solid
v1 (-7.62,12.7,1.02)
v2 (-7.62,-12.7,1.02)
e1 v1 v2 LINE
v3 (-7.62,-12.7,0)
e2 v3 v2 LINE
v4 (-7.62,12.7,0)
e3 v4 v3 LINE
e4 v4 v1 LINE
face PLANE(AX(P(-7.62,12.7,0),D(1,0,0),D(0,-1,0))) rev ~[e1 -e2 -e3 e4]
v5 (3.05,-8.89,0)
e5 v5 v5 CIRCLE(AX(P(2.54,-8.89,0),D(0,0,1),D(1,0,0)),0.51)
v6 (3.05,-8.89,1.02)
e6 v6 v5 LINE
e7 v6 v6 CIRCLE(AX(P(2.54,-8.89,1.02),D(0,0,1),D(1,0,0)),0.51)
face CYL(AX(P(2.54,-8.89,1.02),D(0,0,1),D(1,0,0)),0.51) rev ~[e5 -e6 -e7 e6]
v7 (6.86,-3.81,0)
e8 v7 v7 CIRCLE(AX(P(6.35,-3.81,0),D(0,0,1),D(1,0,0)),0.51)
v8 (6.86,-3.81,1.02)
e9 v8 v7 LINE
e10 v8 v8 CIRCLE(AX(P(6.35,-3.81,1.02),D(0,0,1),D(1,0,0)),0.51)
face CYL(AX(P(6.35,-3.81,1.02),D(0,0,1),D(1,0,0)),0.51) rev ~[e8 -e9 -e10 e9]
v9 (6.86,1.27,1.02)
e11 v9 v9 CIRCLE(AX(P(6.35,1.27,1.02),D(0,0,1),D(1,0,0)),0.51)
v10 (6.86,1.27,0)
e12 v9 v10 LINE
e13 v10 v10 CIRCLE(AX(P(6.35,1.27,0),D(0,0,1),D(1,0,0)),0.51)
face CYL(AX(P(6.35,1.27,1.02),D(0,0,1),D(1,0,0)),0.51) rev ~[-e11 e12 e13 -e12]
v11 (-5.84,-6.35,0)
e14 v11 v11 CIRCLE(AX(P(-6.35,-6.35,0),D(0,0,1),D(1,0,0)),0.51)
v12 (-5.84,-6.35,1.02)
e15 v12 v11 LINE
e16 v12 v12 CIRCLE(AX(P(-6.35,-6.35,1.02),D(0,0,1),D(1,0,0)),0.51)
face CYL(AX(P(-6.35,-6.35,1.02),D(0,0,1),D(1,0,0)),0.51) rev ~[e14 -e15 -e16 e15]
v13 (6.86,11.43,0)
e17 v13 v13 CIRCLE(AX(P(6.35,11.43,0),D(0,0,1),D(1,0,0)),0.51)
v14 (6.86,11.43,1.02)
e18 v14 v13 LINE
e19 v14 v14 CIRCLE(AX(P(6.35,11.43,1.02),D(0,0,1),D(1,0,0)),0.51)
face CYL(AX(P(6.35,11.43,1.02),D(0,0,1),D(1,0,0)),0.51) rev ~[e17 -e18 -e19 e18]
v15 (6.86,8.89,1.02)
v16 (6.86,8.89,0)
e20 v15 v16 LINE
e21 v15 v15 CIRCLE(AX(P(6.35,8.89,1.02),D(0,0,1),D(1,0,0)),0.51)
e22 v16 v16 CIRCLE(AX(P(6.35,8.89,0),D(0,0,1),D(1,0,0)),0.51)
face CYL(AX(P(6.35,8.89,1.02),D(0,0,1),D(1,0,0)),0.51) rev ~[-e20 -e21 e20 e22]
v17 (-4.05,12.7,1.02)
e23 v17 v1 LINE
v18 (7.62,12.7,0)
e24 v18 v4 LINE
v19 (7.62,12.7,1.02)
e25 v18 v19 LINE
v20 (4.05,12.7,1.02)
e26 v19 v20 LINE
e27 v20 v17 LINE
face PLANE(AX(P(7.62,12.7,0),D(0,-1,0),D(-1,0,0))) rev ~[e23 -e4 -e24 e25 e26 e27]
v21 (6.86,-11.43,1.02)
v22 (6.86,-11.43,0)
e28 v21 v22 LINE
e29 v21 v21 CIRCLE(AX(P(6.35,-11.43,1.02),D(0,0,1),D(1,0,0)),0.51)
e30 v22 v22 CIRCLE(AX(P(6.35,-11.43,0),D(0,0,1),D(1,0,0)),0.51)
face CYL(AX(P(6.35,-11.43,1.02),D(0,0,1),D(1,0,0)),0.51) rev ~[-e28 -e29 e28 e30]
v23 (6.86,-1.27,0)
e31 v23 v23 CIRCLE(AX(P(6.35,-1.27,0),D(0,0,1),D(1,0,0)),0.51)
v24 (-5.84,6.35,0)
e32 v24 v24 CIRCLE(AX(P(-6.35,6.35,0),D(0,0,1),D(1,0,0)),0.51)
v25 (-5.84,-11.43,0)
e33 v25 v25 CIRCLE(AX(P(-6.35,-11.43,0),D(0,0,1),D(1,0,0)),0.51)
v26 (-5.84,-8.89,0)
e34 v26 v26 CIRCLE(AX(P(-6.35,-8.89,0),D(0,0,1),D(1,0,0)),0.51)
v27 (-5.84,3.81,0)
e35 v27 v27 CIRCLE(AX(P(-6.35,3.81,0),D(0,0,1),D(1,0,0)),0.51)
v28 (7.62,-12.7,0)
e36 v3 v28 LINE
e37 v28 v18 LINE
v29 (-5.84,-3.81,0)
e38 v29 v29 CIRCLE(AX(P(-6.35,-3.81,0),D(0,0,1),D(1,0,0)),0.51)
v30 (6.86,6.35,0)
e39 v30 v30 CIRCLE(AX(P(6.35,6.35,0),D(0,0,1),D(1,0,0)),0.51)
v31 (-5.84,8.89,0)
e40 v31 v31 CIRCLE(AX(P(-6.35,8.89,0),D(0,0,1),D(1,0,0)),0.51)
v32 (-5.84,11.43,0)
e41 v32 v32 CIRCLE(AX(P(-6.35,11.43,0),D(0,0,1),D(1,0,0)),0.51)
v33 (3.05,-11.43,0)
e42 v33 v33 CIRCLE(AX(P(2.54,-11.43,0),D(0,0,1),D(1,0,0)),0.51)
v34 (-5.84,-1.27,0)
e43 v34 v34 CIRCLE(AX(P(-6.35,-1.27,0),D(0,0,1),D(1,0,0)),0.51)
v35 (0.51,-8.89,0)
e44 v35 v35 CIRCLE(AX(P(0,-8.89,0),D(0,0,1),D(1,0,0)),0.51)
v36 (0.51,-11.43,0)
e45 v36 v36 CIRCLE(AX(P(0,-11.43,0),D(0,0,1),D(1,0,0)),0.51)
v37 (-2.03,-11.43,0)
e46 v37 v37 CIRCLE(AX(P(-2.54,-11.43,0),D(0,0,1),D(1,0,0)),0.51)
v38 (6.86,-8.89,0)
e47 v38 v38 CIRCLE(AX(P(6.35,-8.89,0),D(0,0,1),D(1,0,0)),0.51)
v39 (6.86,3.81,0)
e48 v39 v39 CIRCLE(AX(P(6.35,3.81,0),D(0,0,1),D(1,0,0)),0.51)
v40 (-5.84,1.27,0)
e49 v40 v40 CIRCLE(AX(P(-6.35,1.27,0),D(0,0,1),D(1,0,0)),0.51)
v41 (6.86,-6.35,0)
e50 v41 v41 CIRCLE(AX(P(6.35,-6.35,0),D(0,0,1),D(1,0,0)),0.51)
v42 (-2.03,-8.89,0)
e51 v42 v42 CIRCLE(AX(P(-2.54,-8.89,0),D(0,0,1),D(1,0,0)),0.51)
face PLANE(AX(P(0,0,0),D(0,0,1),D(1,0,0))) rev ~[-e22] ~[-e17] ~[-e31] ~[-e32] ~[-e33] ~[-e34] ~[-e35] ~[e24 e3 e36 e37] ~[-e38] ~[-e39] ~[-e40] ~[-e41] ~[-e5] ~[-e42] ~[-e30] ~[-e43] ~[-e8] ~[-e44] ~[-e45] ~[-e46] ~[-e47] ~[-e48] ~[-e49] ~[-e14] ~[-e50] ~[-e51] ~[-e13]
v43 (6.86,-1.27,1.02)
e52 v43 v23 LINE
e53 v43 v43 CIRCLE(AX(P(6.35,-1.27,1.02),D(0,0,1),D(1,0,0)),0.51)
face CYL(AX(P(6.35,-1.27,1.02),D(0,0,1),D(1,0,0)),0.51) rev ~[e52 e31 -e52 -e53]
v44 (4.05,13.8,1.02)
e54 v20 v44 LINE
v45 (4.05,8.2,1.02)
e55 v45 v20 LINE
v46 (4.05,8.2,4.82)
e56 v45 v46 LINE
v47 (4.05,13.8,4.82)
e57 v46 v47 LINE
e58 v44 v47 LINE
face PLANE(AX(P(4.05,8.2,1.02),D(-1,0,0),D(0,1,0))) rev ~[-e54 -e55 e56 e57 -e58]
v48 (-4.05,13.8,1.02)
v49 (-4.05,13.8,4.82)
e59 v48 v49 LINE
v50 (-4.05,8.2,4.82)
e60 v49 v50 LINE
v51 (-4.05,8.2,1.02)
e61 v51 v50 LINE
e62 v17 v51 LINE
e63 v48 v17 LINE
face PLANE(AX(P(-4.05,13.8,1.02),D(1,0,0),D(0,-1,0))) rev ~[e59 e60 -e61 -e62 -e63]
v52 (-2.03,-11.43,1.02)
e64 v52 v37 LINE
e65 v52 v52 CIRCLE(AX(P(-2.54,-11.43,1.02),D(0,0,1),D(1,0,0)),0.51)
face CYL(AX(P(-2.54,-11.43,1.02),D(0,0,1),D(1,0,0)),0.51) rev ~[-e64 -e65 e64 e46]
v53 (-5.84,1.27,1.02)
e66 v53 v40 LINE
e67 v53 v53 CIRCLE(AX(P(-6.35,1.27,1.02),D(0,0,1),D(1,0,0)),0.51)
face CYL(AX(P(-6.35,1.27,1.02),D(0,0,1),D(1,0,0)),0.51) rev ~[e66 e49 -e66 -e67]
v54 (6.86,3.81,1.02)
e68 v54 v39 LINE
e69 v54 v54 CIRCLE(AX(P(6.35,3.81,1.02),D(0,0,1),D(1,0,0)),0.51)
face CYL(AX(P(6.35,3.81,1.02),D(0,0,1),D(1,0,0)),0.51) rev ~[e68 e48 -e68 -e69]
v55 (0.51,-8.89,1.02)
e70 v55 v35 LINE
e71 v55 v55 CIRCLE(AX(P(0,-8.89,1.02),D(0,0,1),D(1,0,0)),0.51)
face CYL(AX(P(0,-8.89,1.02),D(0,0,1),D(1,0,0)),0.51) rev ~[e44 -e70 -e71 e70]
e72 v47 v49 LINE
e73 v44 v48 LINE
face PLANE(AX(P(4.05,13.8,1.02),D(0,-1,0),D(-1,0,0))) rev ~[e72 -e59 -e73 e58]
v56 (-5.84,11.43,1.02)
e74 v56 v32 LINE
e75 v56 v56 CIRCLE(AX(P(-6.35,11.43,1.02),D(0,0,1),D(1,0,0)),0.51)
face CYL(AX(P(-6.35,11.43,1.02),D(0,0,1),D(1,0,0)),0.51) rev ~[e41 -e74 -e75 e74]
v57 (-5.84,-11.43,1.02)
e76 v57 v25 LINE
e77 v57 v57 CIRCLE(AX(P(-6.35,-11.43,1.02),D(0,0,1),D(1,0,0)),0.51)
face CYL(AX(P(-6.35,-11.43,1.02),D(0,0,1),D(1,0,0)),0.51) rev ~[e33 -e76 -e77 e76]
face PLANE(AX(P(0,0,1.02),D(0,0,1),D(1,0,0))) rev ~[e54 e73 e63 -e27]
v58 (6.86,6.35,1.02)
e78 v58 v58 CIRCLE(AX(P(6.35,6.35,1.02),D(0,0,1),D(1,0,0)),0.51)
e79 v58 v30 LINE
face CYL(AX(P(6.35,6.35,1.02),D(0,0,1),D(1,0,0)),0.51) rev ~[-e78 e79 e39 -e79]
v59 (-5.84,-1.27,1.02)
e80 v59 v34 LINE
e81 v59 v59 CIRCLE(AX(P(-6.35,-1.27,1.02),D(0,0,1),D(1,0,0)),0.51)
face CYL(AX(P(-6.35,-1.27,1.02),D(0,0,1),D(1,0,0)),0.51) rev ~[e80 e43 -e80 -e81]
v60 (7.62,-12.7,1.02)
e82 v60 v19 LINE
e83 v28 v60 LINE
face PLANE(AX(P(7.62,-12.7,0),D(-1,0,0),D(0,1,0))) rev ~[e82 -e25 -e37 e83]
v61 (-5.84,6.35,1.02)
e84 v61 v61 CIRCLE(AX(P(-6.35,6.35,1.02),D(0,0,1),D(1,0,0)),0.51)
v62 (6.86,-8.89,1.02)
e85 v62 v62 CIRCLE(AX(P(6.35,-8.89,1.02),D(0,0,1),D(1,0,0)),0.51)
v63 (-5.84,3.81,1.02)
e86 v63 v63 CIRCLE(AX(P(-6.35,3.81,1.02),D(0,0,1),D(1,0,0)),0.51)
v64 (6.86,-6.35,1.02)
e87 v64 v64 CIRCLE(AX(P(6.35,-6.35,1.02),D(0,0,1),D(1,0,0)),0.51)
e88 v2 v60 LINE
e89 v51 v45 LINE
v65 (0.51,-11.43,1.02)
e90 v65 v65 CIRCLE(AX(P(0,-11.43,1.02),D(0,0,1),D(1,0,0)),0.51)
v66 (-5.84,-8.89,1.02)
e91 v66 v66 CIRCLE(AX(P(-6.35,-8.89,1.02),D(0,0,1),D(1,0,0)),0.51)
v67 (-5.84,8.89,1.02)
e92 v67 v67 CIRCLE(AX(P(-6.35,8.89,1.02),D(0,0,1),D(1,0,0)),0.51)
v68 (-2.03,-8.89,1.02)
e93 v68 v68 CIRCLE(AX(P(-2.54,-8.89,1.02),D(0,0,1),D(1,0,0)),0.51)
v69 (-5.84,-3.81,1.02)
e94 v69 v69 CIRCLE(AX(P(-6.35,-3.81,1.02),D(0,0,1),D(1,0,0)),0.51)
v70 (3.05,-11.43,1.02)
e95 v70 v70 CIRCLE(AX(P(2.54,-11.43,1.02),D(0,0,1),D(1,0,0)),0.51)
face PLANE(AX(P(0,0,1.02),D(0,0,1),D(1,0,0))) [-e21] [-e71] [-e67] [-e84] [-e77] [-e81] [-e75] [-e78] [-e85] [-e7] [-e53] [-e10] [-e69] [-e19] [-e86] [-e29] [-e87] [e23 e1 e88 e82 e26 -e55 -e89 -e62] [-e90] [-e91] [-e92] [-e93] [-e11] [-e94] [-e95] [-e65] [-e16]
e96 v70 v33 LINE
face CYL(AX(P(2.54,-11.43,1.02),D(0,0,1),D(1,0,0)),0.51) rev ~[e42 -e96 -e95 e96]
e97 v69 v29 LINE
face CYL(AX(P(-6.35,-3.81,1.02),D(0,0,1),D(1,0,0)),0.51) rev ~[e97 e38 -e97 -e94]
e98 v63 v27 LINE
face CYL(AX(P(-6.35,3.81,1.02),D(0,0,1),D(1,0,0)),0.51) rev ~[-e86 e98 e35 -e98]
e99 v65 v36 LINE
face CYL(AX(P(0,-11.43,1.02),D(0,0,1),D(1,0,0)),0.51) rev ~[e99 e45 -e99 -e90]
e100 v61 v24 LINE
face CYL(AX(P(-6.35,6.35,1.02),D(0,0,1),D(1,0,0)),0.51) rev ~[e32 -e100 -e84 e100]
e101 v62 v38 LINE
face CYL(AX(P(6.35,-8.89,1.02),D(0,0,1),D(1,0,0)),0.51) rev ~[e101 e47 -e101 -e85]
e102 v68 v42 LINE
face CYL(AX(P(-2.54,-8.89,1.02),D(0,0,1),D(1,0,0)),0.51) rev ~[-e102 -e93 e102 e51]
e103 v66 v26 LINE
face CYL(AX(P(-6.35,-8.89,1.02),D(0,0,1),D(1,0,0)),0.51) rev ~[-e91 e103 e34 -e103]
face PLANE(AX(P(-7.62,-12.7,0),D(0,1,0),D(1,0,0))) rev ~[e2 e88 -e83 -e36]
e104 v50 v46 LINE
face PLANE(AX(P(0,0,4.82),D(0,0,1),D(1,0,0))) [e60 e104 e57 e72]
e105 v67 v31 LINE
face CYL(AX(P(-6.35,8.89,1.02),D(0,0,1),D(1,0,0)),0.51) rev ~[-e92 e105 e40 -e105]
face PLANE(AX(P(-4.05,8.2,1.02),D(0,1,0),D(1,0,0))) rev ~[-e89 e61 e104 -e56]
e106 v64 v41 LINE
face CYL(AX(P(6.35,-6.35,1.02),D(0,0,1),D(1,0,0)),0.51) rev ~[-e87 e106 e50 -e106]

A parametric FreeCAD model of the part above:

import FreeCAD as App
import Part
import Sketcher
from FreeCAD import Vector
Q = App.Units.Quantity


def add_polygon(sketch, points):
    """Adds a closed chain of lines whose ends are joined by coincident constraints."""
    first, n = sketch.GeometryCount, len(points)
    for a, b in zip(points, points[1:] + points[:1]):
        sketch.addGeometry(Part.LineSegment(App.Vector(*a, 0), App.Vector(*b, 0)), False)
    for i in range(n):
        sketch.addConstraint(Sketcher.Constraint("Coincident", first + i, 2, first + (i + 1) % n, 1))

doc = App.newDocument("Part")
params = doc.addObject("Spreadsheet::Sheet", "Params")
for row, (alias, value) in enumerate([
    ("sketch1_height", "1 in"),
    ("sketch1_width", "0.6 in"),
    ("pad1_length", "1.02 mm"),
    ("pocket1_length", "1.02 mm"),
    ("pad2_length", "0.1496063 in"),
], start=1):
    params.set(f"A{row}", alias)
    params.set(f"B{row}", "=" + value)
    params.setAlias(f"B{row}", alias)

body = doc.addObject("PartDesign::Body", "Body")

# Sketch on XY plane
sketch1 = body.newObject("Sketcher::SketchObject", "Sketch")
sketch1.AttachmentSupport = (doc.getObject("XY_Plane"), [""])
sketch1.MapMode = "FlatFace"
add_polygon(sketch1, [(-8, 13), (-8, -13), (8, -13), (8, 13)])  # lines 0-3
sketch1.addConstraint([
    Sketcher.Constraint("Vertical", 0),
    Sketcher.Constraint("Horizontal", 1),
    Sketcher.Constraint("Vertical", 2),
    Sketcher.Constraint("Horizontal", 3),
    Sketcher.Constraint("Symmetric", 0, 2, 2, 2, -1, 1),
    Sketcher.Constraint("DistanceY", 0, 2, 0, 1, Q("1 in")),
    Sketcher.Constraint("DistanceX", 1, 1, 1, 2, Q("0.6 in")),
])
sketch1.setExpression("Constraints[9]", "Params.sketch1_height")
sketch1.setExpression("Constraints[10]", "Params.sketch1_width")
pad1 = body.newObject("PartDesign::Pad", "Pad")
pad1.Profile = sketch1
pad1.setExpression("Length", "Params.pad1_length")

# Sketch on XY plane
sketch2 = body.newObject("Sketcher::SketchObject", "Sketch001")
sketch2.AttachmentSupport = (doc.getObject("XY_Plane"), [""])
sketch2.MapMode = "FlatFace"
sketch2.AttachmentOffset = App.Placement(Vector(0, 0, 1.02), App.Rotation())
sketch2.addGeometry([
    Part.Circle(Vector(-6.3, 11.4, 0), Vector(0, 0, 1), 0.5),  # 0
    Part.Circle(Vector(-6.3, 8.9, 0), Vector(0, 0, 1), 0.5),  # 1
    Part.Circle(Vector(-6.3, 6.3, 0), Vector(0, 0, 1), 0.5),  # 2
    Part.Circle(Vector(-6.3, 3.8, 0), Vector(0, 0, 1), 0.5),  # 3
    Part.Circle(Vector(-6.3, 1.3, 0), Vector(0, 0, 1), 0.5),  # 4
    Part.Circle(Vector(-6.3, -1.3, 0), Vector(0, 0, 1), 0.5),  # 5
    Part.Circle(Vector(-6.3, -3.8, 0), Vector(0, 0, 1), 0.5),  # 6
    Part.Circle(Vector(-6.3, -6.3, 0), Vector(0, 0, 1), 0.5),  # 7
    Part.Circle(Vector(-6.3, -8.9, 0), Vector(0, 0, 1), 0.5),  # 8
    Part.Circle(Vector(-6.3, -11.4, 0), Vector(0, 0, 1), 0.5),  # 9
    Part.Circle(Vector(6.3, 11.4, 0), Vector(0, 0, 1), 0.5),  # 10
    Part.Circle(Vector(6.3, 8.9, 0), Vector(0, 0, 1), 0.5),  # 11
    Part.Circle(Vector(6.3, 6.3, 0), Vector(0, 0, 1), 0.5),  # 12
    Part.Circle(Vector(6.3, 3.8, 0), Vector(0, 0, 1), 0.5),  # 13
    Part.Circle(Vector(6.3, 1.3, 0), Vector(0, 0, 1), 0.5),  # 14
    Part.Circle(Vector(6.3, -1.3, 0), Vector(0, 0, 1), 0.5),  # 15
    Part.Circle(Vector(6.3, -3.8, 0), Vector(0, 0, 1), 0.5),  # 16
    Part.Circle(Vector(6.3, -6.3, 0), Vector(0, 0, 1), 0.5),  # 17
    Part.Circle(Vector(6.3, -8.9, 0), Vector(0, 0, 1), 0.5),  # 18
    Part.Circle(Vector(6.3, -11.4, 0), Vector(0, 0, 1), 0.5),  # 19
    Part.Circle(Vector(-2.5, -8.9, 0), Vector(0, 0, 1), 0.5),  # 20
    Part.Circle(Vector(-2.5, -11.4, 0), Vector(0, 0, 1), 0.5),  # 21
    Part.Circle(Vector(0, -8.9, 0), Vector(0, 0, 1), 0.5),  # 22
    Part.Circle(Vector(0, -11.4, 0), Vector(0, 0, 1), 0.5),  # 23
    Part.Circle(Vector(2.5, -8.9, 0), Vector(0, 0, 1), 0.5),  # 24
    Part.Circle(Vector(2.5, -11.4, 0), Vector(0, 0, 1), 0.5),  # 25
], False)
sketch2.addConstraint([
    Sketcher.Constraint("Equal", 0, 1),
    Sketcher.Constraint("Equal", 1, 2),
    Sketcher.Constraint("Equal", 2, 3),
    Sketcher.Constraint("Equal", 3, 4),
    Sketcher.Constraint("Equal", 4, 5),
    Sketcher.Constraint("Equal", 5, 6),
    Sketcher.Constraint("Equal", 6, 7),
    Sketcher.Constraint("Equal", 7, 8),
    Sketcher.Constraint("Equal", 8, 9),
    Sketcher.Constraint("Equal", 9, 10),
    Sketcher.Constraint("Equal", 10, 11),
    Sketcher.Constraint("Equal", 11, 12),
    Sketcher.Constraint("Equal", 12, 13),
    Sketcher.Constraint("Equal", 13, 14),
    Sketcher.Constraint("Equal", 14, 15),
    Sketcher.Constraint("Equal", 15, 16),
    Sketcher.Constraint("Equal", 16, 17),
    Sketcher.Constraint("Equal", 17, 18),
    Sketcher.Constraint("Equal", 18, 19),
    Sketcher.Constraint("Equal", 19, 20),
    Sketcher.Constraint("Equal", 20, 21),
    Sketcher.Constraint("Equal", 21, 22),
    Sketcher.Constraint("Equal", 22, 23),
    Sketcher.Constraint("Equal", 23, 24),
    Sketcher.Constraint("Equal", 24, 25),
    Sketcher.Constraint("Symmetric", 9, 3, 10, 3, -1, 1),
    Sketcher.Constraint("Symmetric", 8, 3, 11, 3, -1, 1),
    Sketcher.Constraint("Symmetric", 7, 3, 12, 3, -1, 1),
    Sketcher.Constraint("Symmetric", 6, 3, 13, 3, -1, 1),
    Sketcher.Constraint("Symmetric", 5, 3, 14, 3, -1, 1),
    Sketcher.Constraint("Symmetric", 4, 3, 15, 3, -1, 1),
    Sketcher.Constraint("Symmetric", 3, 3, 16, 3, -1, 1),
    Sketcher.Constraint("Symmetric", 2, 3, 17, 3, -1, 1),
    Sketcher.Constraint("Symmetric", 1, 3, 18, 3, -1, 1),
    Sketcher.Constraint("Symmetric", 0, 3, 19, 3, -1, 1),
    Sketcher.Constraint("Symmetric", 0, 3, 10, 3, -2),
    Sketcher.Constraint("Symmetric", 1, 3, 11, 3, -2),
    Sketcher.Constraint("Symmetric", 2, 3, 12, 3, -2),
    Sketcher.Constraint("Symmetric", 3, 3, 13, 3, -2),
    Sketcher.Constraint("Symmetric", 4, 3, 14, 3, -2),
    Sketcher.Constraint("Symmetric", 20, 3, 24, 3, -2),
    Sketcher.Constraint("Symmetric", 21, 3, 25, 3, -2),
    Sketcher.Constraint("PointOnObject", 22, 3, -2),
    Sketcher.Constraint("PointOnObject", 23, 3, -2),
    Sketcher.Constraint("Horizontal", 18, 3, 20, 3),
    Sketcher.Constraint("Horizontal", 19, 3, 21, 3),
    Sketcher.Constraint("Horizontal", 20, 3, 22, 3),
    Sketcher.Constraint("Horizontal", 21, 3, 23, 3),
    Sketcher.Constraint("Vertical", 0, 3, 1, 3),
    Sketcher.Constraint("Vertical", 1, 3, 2, 3),
    Sketcher.Constraint("Vertical", 2, 3, 3, 3),
    Sketcher.Constraint("Vertical", 3, 3, 4, 3),
    Sketcher.Constraint("Vertical", 20, 3, 21, 3),
    Sketcher.Constraint("DistanceX", 20, 3, -1, 1, Q("0.1 in")),
    Sketcher.Constraint("DistanceY", 1, 3, 0, 3, Q("0.1 in")),
    Sketcher.Constraint("DistanceY", 2, 3, 1, 3, Q("0.1 in")),
    Sketcher.Constraint("DistanceY", 3, 3, 2, 3, Q("0.1 in")),
    Sketcher.Constraint("DistanceY", 4, 3, 3, 3, Q("0.1 in")),
    Sketcher.Constraint("DistanceY", 5, 3, 4, 3, Q("0.1 in")),
    Sketcher.Constraint("DistanceX", 0, 3, 10, 3, Q("0.5 in")),
    Sketcher.Constraint("Diameter", 0, Q("1.02 mm")),
])
pocket1 = body.newObject("PartDesign::Pocket", "Pocket")
pocket1.Profile = sketch2
pocket1.setExpression("Length", "Params.pocket1_length")

# Sketch on XY plane
sketch3 = body.newObject("Sketcher::SketchObject", "Sketch002")
sketch3.AttachmentSupport = (doc.getObject("XY_Plane"), [""])
sketch3.MapMode = "FlatFace"
sketch3.AttachmentOffset = App.Placement(Vector(0, 0, 1.02), App.Rotation())
add_polygon(sketch3, [(-4, 14), (-4, 8), (4, 8), (4, 14)])  # lines 0-3
sketch3.addConstraint([
    Sketcher.Constraint("Vertical", 0),
    Sketcher.Constraint("Horizontal", 1),
    Sketcher.Constraint("Vertical", 2),
    Sketcher.Constraint("Horizontal", 3),
    Sketcher.Constraint("DistanceX", 1, 1, 1, 2, Q("0.3189 in")),
    Sketcher.Constraint("DistanceY", 0, 2, 0, 1, Q("5.6 mm")),
    Sketcher.Constraint("DistanceY", -1, 1, 2, 2, Q("0.5433 in")),
    Sketcher.Constraint("DistanceX", 0, 2, -1, 1, Q("4.05 mm")),
])
pad2 = body.newObject("PartDesign::Pad", "Pad001")
pad2.Profile = sketch3
pad2.setExpression("Length", "Params.pad2_length")

doc.recompute()
